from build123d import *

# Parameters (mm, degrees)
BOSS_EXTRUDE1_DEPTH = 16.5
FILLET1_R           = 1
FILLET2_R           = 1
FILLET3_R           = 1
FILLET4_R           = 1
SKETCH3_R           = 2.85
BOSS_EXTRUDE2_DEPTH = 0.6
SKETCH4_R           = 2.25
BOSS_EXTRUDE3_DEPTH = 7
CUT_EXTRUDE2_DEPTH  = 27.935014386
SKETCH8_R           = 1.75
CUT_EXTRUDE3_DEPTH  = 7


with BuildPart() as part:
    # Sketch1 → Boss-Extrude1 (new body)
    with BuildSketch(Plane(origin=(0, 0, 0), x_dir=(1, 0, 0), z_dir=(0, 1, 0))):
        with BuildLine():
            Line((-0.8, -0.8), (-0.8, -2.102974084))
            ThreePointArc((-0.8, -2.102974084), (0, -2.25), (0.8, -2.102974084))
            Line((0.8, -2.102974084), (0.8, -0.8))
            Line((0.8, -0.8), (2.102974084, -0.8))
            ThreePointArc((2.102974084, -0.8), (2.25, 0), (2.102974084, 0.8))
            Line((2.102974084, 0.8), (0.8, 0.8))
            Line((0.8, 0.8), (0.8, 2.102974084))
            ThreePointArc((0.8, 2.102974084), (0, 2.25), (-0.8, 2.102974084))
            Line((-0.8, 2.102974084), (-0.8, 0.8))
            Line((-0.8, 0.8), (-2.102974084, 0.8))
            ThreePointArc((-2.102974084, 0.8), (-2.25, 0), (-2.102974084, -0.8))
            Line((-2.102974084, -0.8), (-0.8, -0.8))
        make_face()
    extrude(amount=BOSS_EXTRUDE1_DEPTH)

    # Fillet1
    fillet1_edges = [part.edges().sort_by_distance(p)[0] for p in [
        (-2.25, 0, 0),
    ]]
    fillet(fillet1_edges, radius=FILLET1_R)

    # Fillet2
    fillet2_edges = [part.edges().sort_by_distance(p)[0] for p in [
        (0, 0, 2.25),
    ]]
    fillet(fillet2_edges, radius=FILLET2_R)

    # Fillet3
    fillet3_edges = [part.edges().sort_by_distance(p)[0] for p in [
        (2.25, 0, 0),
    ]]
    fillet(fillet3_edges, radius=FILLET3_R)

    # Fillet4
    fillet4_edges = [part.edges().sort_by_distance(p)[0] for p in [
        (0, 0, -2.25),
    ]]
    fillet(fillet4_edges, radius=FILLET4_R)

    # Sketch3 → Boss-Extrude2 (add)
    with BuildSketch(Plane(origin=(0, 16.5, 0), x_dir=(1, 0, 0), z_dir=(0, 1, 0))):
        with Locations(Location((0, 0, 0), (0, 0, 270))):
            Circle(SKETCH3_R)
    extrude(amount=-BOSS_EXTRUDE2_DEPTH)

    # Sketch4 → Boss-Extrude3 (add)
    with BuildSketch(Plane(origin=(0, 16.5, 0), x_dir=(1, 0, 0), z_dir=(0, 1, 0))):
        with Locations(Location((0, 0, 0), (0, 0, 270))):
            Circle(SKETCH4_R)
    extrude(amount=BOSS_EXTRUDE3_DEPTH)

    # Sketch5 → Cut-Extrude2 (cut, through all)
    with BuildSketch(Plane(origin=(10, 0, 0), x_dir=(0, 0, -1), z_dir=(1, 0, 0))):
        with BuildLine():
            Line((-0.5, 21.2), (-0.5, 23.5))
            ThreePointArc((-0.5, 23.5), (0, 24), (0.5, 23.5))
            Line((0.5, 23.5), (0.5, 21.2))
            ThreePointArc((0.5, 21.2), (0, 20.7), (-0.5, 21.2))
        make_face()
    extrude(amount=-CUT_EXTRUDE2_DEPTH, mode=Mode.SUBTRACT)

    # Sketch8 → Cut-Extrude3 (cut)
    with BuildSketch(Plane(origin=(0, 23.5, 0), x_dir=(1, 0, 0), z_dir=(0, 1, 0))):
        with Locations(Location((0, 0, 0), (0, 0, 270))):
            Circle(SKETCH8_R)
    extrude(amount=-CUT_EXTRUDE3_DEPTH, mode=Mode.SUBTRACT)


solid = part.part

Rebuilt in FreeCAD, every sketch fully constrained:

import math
import FreeCAD as App
import Part
import Sketcher
Q = App.Units.Quantity


def edges_at(feature, points):
    """Names of the edges that pass closest to the given points."""
    edges = feature.Shape.Edges
    near = lambda p: min(range(len(edges)), key=lambda i: edges[i].distToShape(Part.Vertex(*p))[0])
    return sorted({f"Edge{near(p) + 1}" for p in points})

doc = App.newDocument("Part")
params = doc.addObject("Spreadsheet::Sheet", "Params")
for row, (alias, value) in enumerate([
    ("sketch1_radius", "2.25 mm"),
    ("pad1_length", "16.5 mm"),
    ("fillet_radius", "1 mm"),
    ("fillet2_radius", "1 mm"),
    ("fillet3_radius", "1 mm"),
    ("fillet4_radius", "1 mm"),
    ("sketch2_diameter", "5.7 mm"),
    ("pad2_length", "0.6 mm"),
    ("sketch3_diameter", "4.5 mm"),
    ("pad3_length", "7 mm"),
    ("sketch4_radius", "0.5 mm"),
    ("sketch4_width", "2.3 mm"),
    ("sketch5_diameter", "3.5 mm"),
    ("pocket2_length", "7 mm"),
], start=1):
    params.set(f"A{row}", alias)
    params.set(f"B{row}", "=" + value)
    params.setAlias(f"B{row}", alias)

body = doc.addObject("PartDesign::Body", "Body")

# Sketch on XZ plane
sketch1 = body.newObject("Sketcher::SketchObject", "Sketch")
sketch1.AttachmentSupport = (doc.getObject("XZ_Plane"), [""])
sketch1.MapMode = "FlatFace"
sketch1.addGeometry([
    Part.LineSegment(App.Vector(-0.8, 0.8, 0), App.Vector(-0.8, 2.1, 0)),  # 0
    Part.ArcOfCircle(Part.Circle(App.Vector(0, 0, 0), App.Vector(0, 0, 1), 2.2), math.radians(69), math.radians(111)),  # 1
    Part.LineSegment(App.Vector(0.8, 2.1, 0), App.Vector(0.8, 0.8, 0)),  # 2
    Part.LineSegment(App.Vector(0.8, 0.8, 0), App.Vector(2.1, 0.8, 0)),  # 3
    Part.ArcOfCircle(Part.Circle(App.Vector(0, 0, 0), App.Vector(0, 0, 1), 2.2), math.radians(-21), math.radians(21)),  # 4
    Part.LineSegment(App.Vector(2.1, -0.8, 0), App.Vector(0.8, -0.8, 0)),  # 5
    Part.LineSegment(App.Vector(0.8, -0.8, 0), App.Vector(0.8, -2.1, 0)),  # 6
    Part.ArcOfCircle(Part.Circle(App.Vector(0, 0, 0), App.Vector(0, 0, 1), 2.2), math.radians(-111), math.radians(-69)),  # 7
    Part.LineSegment(App.Vector(-0.8, -2.1, 0), App.Vector(-0.8, -0.8, 0)),  # 8
    Part.LineSegment(App.Vector(-0.8, -0.8, 0), App.Vector(-2.1, -0.8, 0)),  # 9
    Part.ArcOfCircle(Part.Circle(App.Vector(0, 0, 0), App.Vector(0, 0, 1), 2.2), math.radians(159), math.radians(201)),  # 10
    Part.LineSegment(App.Vector(-2.1, 0.8, 0), App.Vector(-0.8, 0.8, 0)),  # 11
], False)
sketch1.addConstraint([
    Sketcher.Constraint("Coincident", 0, 2, 1, 2),
    Sketcher.Constraint("Coincident", 1, 1, 2, 1),
    Sketcher.Constraint("Coincident", 2, 2, 3, 1),
    Sketcher.Constraint("Coincident", 3, 2, 4, 2),
    Sketcher.Constraint("Coincident", 4, 1, 5, 1),
    Sketcher.Constraint("Coincident", 5, 2, 6, 1),
    Sketcher.Constraint("Coincident", 6, 2, 7, 2),
    Sketcher.Constraint("Coincident", 7, 1, 8, 1),
    Sketcher.Constraint("Coincident", 8, 2, 9, 1),
    Sketcher.Constraint("Coincident", 9, 2, 10, 2),
    Sketcher.Constraint("Coincident", 10, 1, 11, 1),
    Sketcher.Constraint("Coincident", 11, 2, 0, 1),
    Sketcher.Constraint("Vertical", 0),
    Sketcher.Constraint("Vertical", 2),
    Sketcher.Constraint("Horizontal", 3),
    Sketcher.Constraint("Horizontal", 5),
    Sketcher.Constraint("Vertical", 6),
    Sketcher.Constraint("Vertical", 8),
    Sketcher.Constraint("Horizontal", 9),
    Sketcher.Constraint("Horizontal", 11),
    Sketcher.Constraint("Coincident", 1, 3, -1, 1),
    Sketcher.Constraint("Coincident", 4, 3, -1, 1),
    Sketcher.Constraint("Coincident", 7, 3, -1, 1),
    Sketcher.Constraint("Coincident", 10, 3, -1, 1),
    Sketcher.Constraint("Equal", 1, 4),
    Sketcher.Constraint("Equal", 4, 7),
    Sketcher.Constraint("Equal", 7, 10),
    Sketcher.Constraint("Symmetric", 2, 2, 8, 2, -1, 1),
    Sketcher.Constraint("Symmetric", 5, 2, 11, 2, -1, 1),
    Sketcher.Constraint("Symmetric", 5, 2, 8, 2, -2),
    Sketcher.Constraint("Equal", 11, 0),
    Sketcher.Constraint("Radius", 1, Q("2.25 mm")),
    Sketcher.Constraint("DistanceX", 0, 2, -1, 1, Q("0.8 mm")),
])
sketch1.setExpression("Constraints[31]", "Params.sketch1_radius")
pad1 = body.newObject("PartDesign::Pad", "Pad")
pad1.Profile = sketch1
pad1.setExpression("Length", "Params.pad1_length")
pad1.Reversed = True
doc.recompute()

fillet = body.newObject("PartDesign::Fillet", "Fillet")
fillet.Base = (pad1, edges_at(pad1, [(-2.25, 0, 0)]))
fillet.setExpression("Radius", "Params.fillet_radius")
doc.recompute()

fillet2 = body.newObject("PartDesign::Fillet", "Fillet001")
fillet2.Base = (fillet, edges_at(fillet, [(0, 0, 2.25)]))
fillet2.setExpression("Radius", "Params.fillet2_radius")
doc.recompute()

fillet3 = body.newObject("PartDesign::Fillet", "Fillet002")
fillet3.Base = (fillet2, edges_at(fillet2, [(2.25, 0, 0)]))
fillet3.setExpression("Radius", "Params.fillet3_radius")
doc.recompute()

fillet4 = body.newObject("PartDesign::Fillet", "Fillet003")
fillet4.Base = (fillet3, edges_at(fillet3, [(0, 0, -2.25)]))
fillet4.setExpression("Radius", "Params.fillet4_radius")

# Sketch on XZ plane
sketch2 = body.newObject("Sketcher::SketchObject", "Sketch001")
sketch2.AttachmentSupport = (doc.getObject("XZ_Plane"), [""])
sketch2.MapMode = "FlatFace"
sketch2.AttachmentOffset = App.Placement(App.Vector(0, 0, -16.5), App.Rotation())
sketch2.addGeometry(Part.Circle(App.Vector(0, 0, 0), App.Vector(0, 0, 1), 2.9), False)
sketch2.addConstraint([
    Sketcher.Constraint("Coincident", 0, 3, -1, 1),
    Sketcher.Constraint("Diameter", 0, Q("5.7 mm")),
])
sketch2.setExpression("Constraints[1]", "Params.sketch2_diameter")
pad2 = body.newObject("PartDesign::Pad", "Pad001")
pad2.Profile = sketch2
pad2.setExpression("Length", "Params.pad2_length")

# Sketch on XZ plane
sketch3 = body.newObject("Sketcher::SketchObject", "Sketch002")
sketch3.AttachmentSupport = (doc.getObject("XZ_Plane"), [""])
sketch3.MapMode = "FlatFace"
sketch3.AttachmentOffset = App.Placement(App.Vector(0, 0, -16.5), App.Rotation())
sketch3.addGeometry(Part.Circle(App.Vector(0, 0, 0), App.Vector(0, 0, 1), 2.2), False)
sketch3.addConstraint([
    Sketcher.Constraint("Coincident", 0, 3, -1, 1),
    Sketcher.Constraint("Diameter", 0, Q("4.5 mm")),
])
sketch3.setExpression("Constraints[1]", "Params.sketch3_diameter")
pad3 = body.newObject("PartDesign::Pad", "Pad002")
pad3.Profile = sketch3
pad3.setExpression("Length", "Params.pad3_length")
pad3.Reversed = True

# Sketch on YZ plane
sketch4 = body.newObject("Sketcher::SketchObject", "Sketch003")
sketch4.AttachmentSupport = (doc.getObject("YZ_Plane"), [""])
sketch4.MapMode = "FlatFace"
sketch4.AttachmentOffset = App.Placement(App.Vector(0, 0, 10), App.Rotation())
sketch4.addGeometry([
    Part.LineSegment(App.Vector(23.5, 0.5, 0), App.Vector(21.2, 0.5, 0)),
    Part.ArcOfCircle(Part.Circle(App.Vector(21.2, 0, 0), App.Vector(0, 0, 1), 0.5), math.radians(90), math.radians(270)),
    Part.LineSegment(App.Vector(21.2, -0.5, 0), App.Vector(23.5, -0.5, 0)),
    Part.ArcOfCircle(Part.Circle(App.Vector(23.5, 0, 0), App.Vector(0, 0, 1), 0.5), math.radians(-90), math.radians(90)),
], False)
sketch4.addConstraint([
    Sketcher.Constraint("Tangent", 0, 2, 1, 1),
    Sketcher.Constraint("Tangent", 1, 2, 2, 1),
    Sketcher.Constraint("Tangent", 2, 2, 3, 1),
    Sketcher.Constraint("Tangent", 3, 2, 0, 1),
    Sketcher.Constraint("Horizontal", 0),
    Sketcher.Constraint("Horizontal", 2),
    Sketcher.Constraint("PointOnObject", 1, 3, -1),
    Sketcher.Constraint("Radius", 1, Q("0.5 mm")),
    Sketcher.Constraint("DistanceX", 0, 2, 0, 1, Q("2.3 mm")),
    Sketcher.Constraint("DistanceX", -1, 1, 1, 3, Q("21.2 mm")),
])
sketch4.setExpression("Constraints[7]", "Params.sketch4_radius")
sketch4.setExpression("Constraints[8]", "Params.sketch4_width")
pocket1 = body.newObject("PartDesign::Pocket", "Pocket")
pocket1.Profile = sketch4
pocket1.Type = "ThroughAll"

# Sketch on XZ plane
sketch5 = body.newObject("Sketcher::SketchObject", "Sketch004")
sketch5.AttachmentSupport = (doc.getObject("XZ_Plane"), [""])
sketch5.MapMode = "FlatFace"
sketch5.AttachmentOffset = App.Placement(App.Vector(0, 0, -23.5), App.Rotation())
sketch5.addGeometry(Part.Circle(App.Vector(0, 0, 0), App.Vector(0, 0, 1), 1.8), False)
sketch5.addConstraint([
    Sketcher.Constraint("Coincident", 0, 3, -1, 1),
    Sketcher.Constraint("Diameter", 0, Q("3.5 mm")),
])
sketch5.setExpression("Constraints[1]", "Params.sketch5_diameter")
pocket2 = body.newObject("PartDesign::Pocket", "Pocket001")
pocket2.Profile = sketch5
pocket2.setExpression("Length", "Params.pocket2_length")
pocket2.Reversed = True

doc.recompute()
